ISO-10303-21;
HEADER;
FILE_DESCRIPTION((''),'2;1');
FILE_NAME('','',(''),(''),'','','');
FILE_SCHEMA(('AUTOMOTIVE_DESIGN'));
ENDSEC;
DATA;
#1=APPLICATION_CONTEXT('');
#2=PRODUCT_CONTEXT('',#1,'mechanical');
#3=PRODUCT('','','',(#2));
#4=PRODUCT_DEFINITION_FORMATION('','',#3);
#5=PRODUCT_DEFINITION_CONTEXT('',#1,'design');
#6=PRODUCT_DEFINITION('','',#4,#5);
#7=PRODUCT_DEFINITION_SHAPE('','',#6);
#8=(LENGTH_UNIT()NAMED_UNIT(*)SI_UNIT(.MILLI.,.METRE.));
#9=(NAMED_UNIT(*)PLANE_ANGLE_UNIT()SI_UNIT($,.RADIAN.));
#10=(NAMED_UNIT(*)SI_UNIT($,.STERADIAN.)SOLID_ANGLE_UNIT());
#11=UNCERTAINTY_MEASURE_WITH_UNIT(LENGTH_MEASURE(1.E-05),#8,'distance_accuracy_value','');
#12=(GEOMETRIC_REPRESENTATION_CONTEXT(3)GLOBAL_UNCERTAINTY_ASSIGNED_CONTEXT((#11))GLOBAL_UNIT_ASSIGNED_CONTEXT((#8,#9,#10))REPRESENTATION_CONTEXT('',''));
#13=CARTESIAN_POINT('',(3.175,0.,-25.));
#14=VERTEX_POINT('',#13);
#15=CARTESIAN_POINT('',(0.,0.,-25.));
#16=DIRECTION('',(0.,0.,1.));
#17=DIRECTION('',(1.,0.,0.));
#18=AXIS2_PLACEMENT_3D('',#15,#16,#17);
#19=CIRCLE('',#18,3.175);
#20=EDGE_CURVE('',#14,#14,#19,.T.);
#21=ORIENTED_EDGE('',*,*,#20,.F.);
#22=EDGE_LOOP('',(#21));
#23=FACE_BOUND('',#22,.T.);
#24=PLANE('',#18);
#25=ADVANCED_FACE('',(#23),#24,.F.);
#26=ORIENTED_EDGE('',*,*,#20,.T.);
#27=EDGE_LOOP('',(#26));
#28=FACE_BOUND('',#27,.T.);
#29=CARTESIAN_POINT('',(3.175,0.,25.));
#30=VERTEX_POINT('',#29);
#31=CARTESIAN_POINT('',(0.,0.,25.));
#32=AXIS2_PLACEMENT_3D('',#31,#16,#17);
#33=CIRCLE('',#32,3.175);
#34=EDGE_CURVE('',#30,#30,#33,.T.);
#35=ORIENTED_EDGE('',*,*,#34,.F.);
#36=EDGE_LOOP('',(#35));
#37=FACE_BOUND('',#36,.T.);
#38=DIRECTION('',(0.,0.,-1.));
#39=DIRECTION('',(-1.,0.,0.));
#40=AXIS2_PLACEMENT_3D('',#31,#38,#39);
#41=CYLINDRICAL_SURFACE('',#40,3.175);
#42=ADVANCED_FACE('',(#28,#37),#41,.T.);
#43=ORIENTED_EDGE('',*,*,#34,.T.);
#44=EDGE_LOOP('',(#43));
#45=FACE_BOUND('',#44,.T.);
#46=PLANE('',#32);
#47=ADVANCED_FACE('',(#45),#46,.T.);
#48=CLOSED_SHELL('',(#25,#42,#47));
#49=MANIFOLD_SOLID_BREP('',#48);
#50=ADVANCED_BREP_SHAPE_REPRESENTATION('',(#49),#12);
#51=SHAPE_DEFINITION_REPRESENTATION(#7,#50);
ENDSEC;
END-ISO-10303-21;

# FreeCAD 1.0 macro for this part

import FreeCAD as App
import Part
import Sketcher

V = App.Vector
Q = App.Units.Quantity

doc = App.newDocument("Part")
params = doc.addObject("Spreadsheet::Sheet", "Params")
for row, (alias, value) in enumerate([
    ("sketch1_diameter", "6.35 mm"),
    ("pad1_length", "50 mm"),
], start=1):
    params.set(f"A{row}", alias)
    params.set(f"B{row}", "=" + value)
    params.setAlias(f"B{row}", alias)

body = doc.addObject("PartDesign::Body", "Body")

# Sketch on XY plane
sketch1 = body.newObject("Sketcher::SketchObject", "Sketch")
sketch1.AttachmentSupport = (doc.getObject("XY_Plane"), [""])
sketch1.MapMode = "FlatFace"
sketch1.addGeometry(Part.Circle(V(0, 0, 0), V(0, 0, 1), 3.2), False)
sketch1.addConstraint([
    Sketcher.Constraint("Coincident", 0, 3, -1, 1),
    Sketcher.Constraint("Diameter", 0, Q("6.35 mm")),
])
sketch1.setExpression("Constraints[1]", "Params.sketch1_diameter")
pad1 = body.newObject("PartDesign::Pad", "Pad")
pad1.Profile = sketch1
pad1.setExpression("Length", "Params.pad1_length")
pad1.Midplane = True

doc.recompute()
